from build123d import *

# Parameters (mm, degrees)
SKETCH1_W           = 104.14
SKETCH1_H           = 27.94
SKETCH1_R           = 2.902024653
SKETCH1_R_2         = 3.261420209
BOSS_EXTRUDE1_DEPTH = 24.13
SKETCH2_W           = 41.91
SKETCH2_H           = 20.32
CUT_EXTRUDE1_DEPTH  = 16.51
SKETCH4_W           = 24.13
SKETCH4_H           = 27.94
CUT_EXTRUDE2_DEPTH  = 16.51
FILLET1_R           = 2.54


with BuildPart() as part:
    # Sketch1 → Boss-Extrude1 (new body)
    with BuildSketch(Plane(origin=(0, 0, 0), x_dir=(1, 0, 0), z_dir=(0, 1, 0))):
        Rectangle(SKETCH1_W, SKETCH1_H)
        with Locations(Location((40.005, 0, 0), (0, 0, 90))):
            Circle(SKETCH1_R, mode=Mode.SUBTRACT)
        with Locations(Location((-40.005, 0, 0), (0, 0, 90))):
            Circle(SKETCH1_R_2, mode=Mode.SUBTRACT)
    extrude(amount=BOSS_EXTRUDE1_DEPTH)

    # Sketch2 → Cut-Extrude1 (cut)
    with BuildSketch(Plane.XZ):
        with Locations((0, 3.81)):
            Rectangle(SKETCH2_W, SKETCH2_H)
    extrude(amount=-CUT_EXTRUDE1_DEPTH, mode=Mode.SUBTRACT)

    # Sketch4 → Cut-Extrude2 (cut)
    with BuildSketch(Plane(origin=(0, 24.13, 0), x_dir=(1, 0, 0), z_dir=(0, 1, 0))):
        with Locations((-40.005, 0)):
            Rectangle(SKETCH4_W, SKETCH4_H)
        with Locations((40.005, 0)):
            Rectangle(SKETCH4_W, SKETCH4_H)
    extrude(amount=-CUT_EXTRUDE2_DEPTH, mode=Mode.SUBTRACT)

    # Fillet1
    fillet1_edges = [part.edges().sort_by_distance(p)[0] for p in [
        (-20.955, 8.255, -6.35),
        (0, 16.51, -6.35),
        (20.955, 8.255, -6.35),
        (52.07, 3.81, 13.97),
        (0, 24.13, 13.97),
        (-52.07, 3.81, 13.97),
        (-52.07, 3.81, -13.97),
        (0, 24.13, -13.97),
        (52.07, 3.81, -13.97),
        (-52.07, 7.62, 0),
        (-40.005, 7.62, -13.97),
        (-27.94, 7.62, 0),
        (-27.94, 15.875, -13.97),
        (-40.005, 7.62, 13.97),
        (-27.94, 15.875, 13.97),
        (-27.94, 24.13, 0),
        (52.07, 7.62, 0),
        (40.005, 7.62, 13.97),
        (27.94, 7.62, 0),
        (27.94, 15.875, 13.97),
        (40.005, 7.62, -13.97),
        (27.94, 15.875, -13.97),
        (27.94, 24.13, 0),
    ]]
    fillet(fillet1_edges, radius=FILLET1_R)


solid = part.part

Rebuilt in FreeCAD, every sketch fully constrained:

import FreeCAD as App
import Part
import Sketcher

V = App.Vector
Q = App.Units.Quantity


def edges_at(feature, points):
    """Names of the edges that pass closest to the given points."""
    edges = feature.Shape.Edges
    near = lambda p: min(range(len(edges)), key=lambda i: edges[i].distToShape(Part.Vertex(*p))[0])
    return sorted({f"Edge{near(p) + 1}" for p in points})


def add_polygon(sketch, points):
    """Adds a closed chain of lines whose ends are joined by coincident constraints."""
    first, n = sketch.GeometryCount, len(points)
    for a, b in zip(points, points[1:] + points[:1]):
        sketch.addGeometry(Part.LineSegment(App.Vector(*a, 0), App.Vector(*b, 0)), False)
    for i in range(n):
        sketch.addConstraint(Sketcher.Constraint("Coincident", first + i, 2, first + (i + 1) % n, 1))

doc = App.newDocument("Part")
params = doc.addObject("Spreadsheet::Sheet", "Params")
for row, (alias, value) in enumerate([
    ("sketch1_width", "4.1 in"),
    ("sketch1_height", "1.1 in"),
    ("pad1_length", "0.95 in"),
    ("sketch2_height", "0.8 in"),
    ("sketch2_width", "1.65 in"),
    ("pocket1_length", "0.65 in"),
    ("sketch3_height", "1.1 in"),
    ("sketch3_width", "0.95 in"),
    ("pocket2_length", "0.65 in"),
    ("fillet_radius", "0.1 in"),
], start=1):
    params.set(f"A{row}", alias)
    params.set(f"B{row}", "=" + value)
    params.setAlias(f"B{row}", alias)

body = doc.addObject("PartDesign::Body", "Body")

# Sketch on XZ plane
sketch1 = body.newObject("Sketcher::SketchObject", "Sketch")
sketch1.AttachmentSupport = (doc.getObject("XZ_Plane"), [""])
sketch1.MapMode = "FlatFace"
add_polygon(sketch1, [(-52.07, -13.97), (-52.07, 13.97), (52.07, 13.97), (52.07, -13.97)])  # lines 0-3
sketch1.addGeometry(Part.Circle(V(-40.005, 0, 0), V(0, 0, 1), 3.26142), False)  # 4
sketch1.addGeometry(Part.Circle(V(40.005, 0, 0), V(0, 0, 1), 2.902025), False)  # 5
sketch1.addConstraint([
    Sketcher.Constraint("Vertical", 0),
    Sketcher.Constraint("Horizontal", 1),
    Sketcher.Constraint("Vertical", 2),
    Sketcher.Constraint("Horizontal", 3),
    Sketcher.Constraint("Symmetric", 4, 3, 5, 3, -1, 1),
    Sketcher.Constraint("Symmetric", 0, 2, 2, 2, -1, 1),
    Sketcher.Constraint("PointOnObject", 4, 3, -1),
    Sketcher.Constraint("DistanceX", 1, 1, 1, 2, Q("4.1 in")),
    Sketcher.Constraint("DistanceY", 0, 1, 0, 2, Q("1.1 in")),
    Sketcher.Constraint("DistanceX", 4, 3, 5, 3, Q("3.15 in")),
    Sketcher.Constraint("Diameter", 4, Q("6.52284 mm")),
    Sketcher.Constraint("Diameter", 5, Q("5.804049 mm")),
])
sketch1.setExpression("Constraints[11]", "Params.sketch1_width")
sketch1.setExpression("Constraints[12]", "Params.sketch1_height")
pad1 = body.newObject("PartDesign::Pad", "Pad")
pad1.Profile = sketch1
pad1.setExpression("Length", "Params.pad1_length")
pad1.Reversed = True

# Sketch on XZ plane
sketch2 = body.newObject("Sketcher::SketchObject", "Sketch001")
sketch2.AttachmentSupport = (doc.getObject("XZ_Plane"), [""])
sketch2.MapMode = "FlatFace"
add_polygon(sketch2, [(-20.955, 13.97), (-20.955, -6.35), (20.955, -6.35), (20.955, 13.97)])  # lines 0-3
sketch2.addConstraint([
    Sketcher.Constraint("Vertical", 0),
    Sketcher.Constraint("Horizontal", 1),
    Sketcher.Constraint("Vertical", 2),
    Sketcher.Constraint("Horizontal", 3),
    Sketcher.Constraint("DistanceY", 0, 2, 0, 1, Q("0.8 in")),
    Sketcher.Constraint("DistanceX", 1, 1, 1, 2, Q("1.65 in")),
    Sketcher.Constraint("DistanceY", 0, 2, -1, 1, Q("0.25 in")),
    Sketcher.Constraint("DistanceX", 0, 2, -1, 1, Q("0.825 in")),
])
sketch2.setExpression("Constraints[8]", "Params.sketch2_height")
sketch2.setExpression("Constraints[9]", "Params.sketch2_width")
pocket1 = body.newObject("PartDesign::Pocket", "Pocket")
pocket1.Profile = sketch2
pocket1.setExpression("Length", "Params.pocket1_length")

# Sketch on XZ plane
sketch3 = body.newObject("Sketcher::SketchObject", "Sketch002")
sketch3.AttachmentSupport = (doc.getObject("XZ_Plane"), [""])
sketch3.MapMode = "FlatFace"
sketch3.AttachmentOffset = App.Placement(V(0, 0, -0.95 * 25.4), App.Rotation())
add_polygon(sketch3, [(-52.07, -13.97), (-52.07, 13.97), (-27.94, 13.97), (-27.94, -13.97)])  # lines 0-3
add_polygon(sketch3, [(27.94, -13.97), (27.94, 13.97), (52.07, 13.97), (52.07, -13.97)])  # lines 4-7
sketch3.addConstraint([
    Sketcher.Constraint("Vertical", 0),
    Sketcher.Constraint("Horizontal", 1),
    Sketcher.Constraint("Vertical", 2),
    Sketcher.Constraint("Horizontal", 3),
    Sketcher.Constraint("Vertical", 4),
    Sketcher.Constraint("Horizontal", 5),
    Sketcher.Constraint("Vertical", 6),
    Sketcher.Constraint("Horizontal", 7),
    Sketcher.Constraint("Symmetric", 2, 2, 4, 2, -1, 1),
    Sketcher.Constraint("Symmetric", 0, 2, 6, 2, -1, 1),
    Sketcher.Constraint("Horizontal", 1, 2, 4, 2),
    Sketcher.Constraint("DistanceY", 0, 1, 0, 2, Q("1.1 in")),
    Sketcher.Constraint("DistanceX", 1, 1, 1, 2, Q("0.95 in")),
    Sketcher.Constraint("DistanceX", 1, 2, -1, 1, Q("1.1 in")),
])
sketch3.setExpression("Constraints[19]", "Params.sketch3_height")
sketch3.setExpression("Constraints[20]", "Params.sketch3_width")
pocket2 = body.newObject("PartDesign::Pocket", "Pocket001")
pocket2.Profile = sketch3
pocket2.setExpression("Length", "Params.pocket2_length")
pocket2.Reversed = True
doc.recompute()

fillet = body.newObject("PartDesign::Fillet", "Fillet")
fillet.Base = (pocket2, edges_at(pocket2, [
    (-20.955, 8.255, -6.35),
    (0, 16.51, -6.35),
    (20.955, 8.255, -6.35),
    (52.07, 3.81, 13.97),
    (0, 24.13, 13.97),
    (-52.07, 3.81, 13.97),
    (-52.07, 3.81, -13.97),
    (0, 24.13, -13.97),
    (52.07, 3.81, -13.97),
    (-52.07, 7.62, 0),
    (-40.005, 7.62, -13.97),
    (-27.94, 7.62, 0),
    (-27.94, 15.875, -13.97),
    (-40.005, 7.62, 13.97),
    (-27.94, 15.875, 13.97),
    (-27.94, 24.13, 0),
    (52.07, 7.62, 0),
    (40.005, 7.62, 13.97),
    (27.94, 7.62, 0),
    (27.94, 15.875, 13.97),
    (40.005, 7.62, -13.97),
    (27.94, 15.875, -13.97),
    (27.94, 24.13, 0),
]))
fillet.setExpression("Radius", "Params.fillet_radius")

doc.recompute()
